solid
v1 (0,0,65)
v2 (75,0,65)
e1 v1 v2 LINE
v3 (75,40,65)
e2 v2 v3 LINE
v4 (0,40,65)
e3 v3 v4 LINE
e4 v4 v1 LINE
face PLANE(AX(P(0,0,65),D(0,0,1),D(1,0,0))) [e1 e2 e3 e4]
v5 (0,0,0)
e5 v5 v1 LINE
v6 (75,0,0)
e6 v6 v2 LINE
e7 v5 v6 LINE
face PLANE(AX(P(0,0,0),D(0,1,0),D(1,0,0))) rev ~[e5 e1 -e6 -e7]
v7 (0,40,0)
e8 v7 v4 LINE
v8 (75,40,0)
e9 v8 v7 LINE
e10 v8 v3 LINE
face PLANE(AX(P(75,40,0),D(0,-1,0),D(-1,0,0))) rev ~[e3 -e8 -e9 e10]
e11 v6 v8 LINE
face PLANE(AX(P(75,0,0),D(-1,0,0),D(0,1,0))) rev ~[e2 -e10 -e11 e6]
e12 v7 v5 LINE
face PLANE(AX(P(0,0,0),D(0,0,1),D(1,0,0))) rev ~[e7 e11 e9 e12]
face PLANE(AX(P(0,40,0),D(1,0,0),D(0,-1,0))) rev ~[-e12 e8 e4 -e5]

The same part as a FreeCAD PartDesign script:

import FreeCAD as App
import Part
import Sketcher

V = App.Vector


def add_polygon(sketch, points):
    """Adds a closed chain of lines whose ends are joined by coincident constraints."""
    first, n = sketch.GeometryCount, len(points)
    for a, b in zip(points, points[1:] + points[:1]):
        sketch.addGeometry(Part.LineSegment(App.Vector(*a, 0), App.Vector(*b, 0)), False)
    for i in range(n):
        sketch.addConstraint(Sketcher.Constraint("Coincident", first + i, 2, first + (i + 1) % n, 1))

doc = App.newDocument("Part")
body = doc.addObject("PartDesign::Body", "Body")

# Sketch on XY plane
sketch1 = body.newObject("Sketcher::SketchObject", "Sketch")
sketch1.AttachmentSupport = (doc.getObject("XY_Plane"), [""])
sketch1.MapMode = "FlatFace"
add_polygon(sketch1, [(0, 40), (0, 0), (75, 0), (75, 40)])  # lines 0-3
sketch1.addConstraint(Sketcher.Constraint("Vertical", 0))
sketch1.addConstraint(Sketcher.Constraint("Horizontal", 1))
sketch1.addConstraint(Sketcher.Constraint("Vertical", 2))
sketch1.addConstraint(Sketcher.Constraint("Horizontal", 3))
sketch1.addConstraint(Sketcher.Constraint("Coincident", 0, 2, -1, 1))
sketch1.addConstraint(Sketcher.Constraint("DistanceX", 1, 1, 1, 2, 75.0))
sketch1.addConstraint(Sketcher.Constraint("DistanceY", 0, 2, 0, 1, 40.0))
pad1 = body.newObject("PartDesign::Pad", "Pad")
pad1.Profile = sketch1
pad1.Length = 65

doc.recompute()
